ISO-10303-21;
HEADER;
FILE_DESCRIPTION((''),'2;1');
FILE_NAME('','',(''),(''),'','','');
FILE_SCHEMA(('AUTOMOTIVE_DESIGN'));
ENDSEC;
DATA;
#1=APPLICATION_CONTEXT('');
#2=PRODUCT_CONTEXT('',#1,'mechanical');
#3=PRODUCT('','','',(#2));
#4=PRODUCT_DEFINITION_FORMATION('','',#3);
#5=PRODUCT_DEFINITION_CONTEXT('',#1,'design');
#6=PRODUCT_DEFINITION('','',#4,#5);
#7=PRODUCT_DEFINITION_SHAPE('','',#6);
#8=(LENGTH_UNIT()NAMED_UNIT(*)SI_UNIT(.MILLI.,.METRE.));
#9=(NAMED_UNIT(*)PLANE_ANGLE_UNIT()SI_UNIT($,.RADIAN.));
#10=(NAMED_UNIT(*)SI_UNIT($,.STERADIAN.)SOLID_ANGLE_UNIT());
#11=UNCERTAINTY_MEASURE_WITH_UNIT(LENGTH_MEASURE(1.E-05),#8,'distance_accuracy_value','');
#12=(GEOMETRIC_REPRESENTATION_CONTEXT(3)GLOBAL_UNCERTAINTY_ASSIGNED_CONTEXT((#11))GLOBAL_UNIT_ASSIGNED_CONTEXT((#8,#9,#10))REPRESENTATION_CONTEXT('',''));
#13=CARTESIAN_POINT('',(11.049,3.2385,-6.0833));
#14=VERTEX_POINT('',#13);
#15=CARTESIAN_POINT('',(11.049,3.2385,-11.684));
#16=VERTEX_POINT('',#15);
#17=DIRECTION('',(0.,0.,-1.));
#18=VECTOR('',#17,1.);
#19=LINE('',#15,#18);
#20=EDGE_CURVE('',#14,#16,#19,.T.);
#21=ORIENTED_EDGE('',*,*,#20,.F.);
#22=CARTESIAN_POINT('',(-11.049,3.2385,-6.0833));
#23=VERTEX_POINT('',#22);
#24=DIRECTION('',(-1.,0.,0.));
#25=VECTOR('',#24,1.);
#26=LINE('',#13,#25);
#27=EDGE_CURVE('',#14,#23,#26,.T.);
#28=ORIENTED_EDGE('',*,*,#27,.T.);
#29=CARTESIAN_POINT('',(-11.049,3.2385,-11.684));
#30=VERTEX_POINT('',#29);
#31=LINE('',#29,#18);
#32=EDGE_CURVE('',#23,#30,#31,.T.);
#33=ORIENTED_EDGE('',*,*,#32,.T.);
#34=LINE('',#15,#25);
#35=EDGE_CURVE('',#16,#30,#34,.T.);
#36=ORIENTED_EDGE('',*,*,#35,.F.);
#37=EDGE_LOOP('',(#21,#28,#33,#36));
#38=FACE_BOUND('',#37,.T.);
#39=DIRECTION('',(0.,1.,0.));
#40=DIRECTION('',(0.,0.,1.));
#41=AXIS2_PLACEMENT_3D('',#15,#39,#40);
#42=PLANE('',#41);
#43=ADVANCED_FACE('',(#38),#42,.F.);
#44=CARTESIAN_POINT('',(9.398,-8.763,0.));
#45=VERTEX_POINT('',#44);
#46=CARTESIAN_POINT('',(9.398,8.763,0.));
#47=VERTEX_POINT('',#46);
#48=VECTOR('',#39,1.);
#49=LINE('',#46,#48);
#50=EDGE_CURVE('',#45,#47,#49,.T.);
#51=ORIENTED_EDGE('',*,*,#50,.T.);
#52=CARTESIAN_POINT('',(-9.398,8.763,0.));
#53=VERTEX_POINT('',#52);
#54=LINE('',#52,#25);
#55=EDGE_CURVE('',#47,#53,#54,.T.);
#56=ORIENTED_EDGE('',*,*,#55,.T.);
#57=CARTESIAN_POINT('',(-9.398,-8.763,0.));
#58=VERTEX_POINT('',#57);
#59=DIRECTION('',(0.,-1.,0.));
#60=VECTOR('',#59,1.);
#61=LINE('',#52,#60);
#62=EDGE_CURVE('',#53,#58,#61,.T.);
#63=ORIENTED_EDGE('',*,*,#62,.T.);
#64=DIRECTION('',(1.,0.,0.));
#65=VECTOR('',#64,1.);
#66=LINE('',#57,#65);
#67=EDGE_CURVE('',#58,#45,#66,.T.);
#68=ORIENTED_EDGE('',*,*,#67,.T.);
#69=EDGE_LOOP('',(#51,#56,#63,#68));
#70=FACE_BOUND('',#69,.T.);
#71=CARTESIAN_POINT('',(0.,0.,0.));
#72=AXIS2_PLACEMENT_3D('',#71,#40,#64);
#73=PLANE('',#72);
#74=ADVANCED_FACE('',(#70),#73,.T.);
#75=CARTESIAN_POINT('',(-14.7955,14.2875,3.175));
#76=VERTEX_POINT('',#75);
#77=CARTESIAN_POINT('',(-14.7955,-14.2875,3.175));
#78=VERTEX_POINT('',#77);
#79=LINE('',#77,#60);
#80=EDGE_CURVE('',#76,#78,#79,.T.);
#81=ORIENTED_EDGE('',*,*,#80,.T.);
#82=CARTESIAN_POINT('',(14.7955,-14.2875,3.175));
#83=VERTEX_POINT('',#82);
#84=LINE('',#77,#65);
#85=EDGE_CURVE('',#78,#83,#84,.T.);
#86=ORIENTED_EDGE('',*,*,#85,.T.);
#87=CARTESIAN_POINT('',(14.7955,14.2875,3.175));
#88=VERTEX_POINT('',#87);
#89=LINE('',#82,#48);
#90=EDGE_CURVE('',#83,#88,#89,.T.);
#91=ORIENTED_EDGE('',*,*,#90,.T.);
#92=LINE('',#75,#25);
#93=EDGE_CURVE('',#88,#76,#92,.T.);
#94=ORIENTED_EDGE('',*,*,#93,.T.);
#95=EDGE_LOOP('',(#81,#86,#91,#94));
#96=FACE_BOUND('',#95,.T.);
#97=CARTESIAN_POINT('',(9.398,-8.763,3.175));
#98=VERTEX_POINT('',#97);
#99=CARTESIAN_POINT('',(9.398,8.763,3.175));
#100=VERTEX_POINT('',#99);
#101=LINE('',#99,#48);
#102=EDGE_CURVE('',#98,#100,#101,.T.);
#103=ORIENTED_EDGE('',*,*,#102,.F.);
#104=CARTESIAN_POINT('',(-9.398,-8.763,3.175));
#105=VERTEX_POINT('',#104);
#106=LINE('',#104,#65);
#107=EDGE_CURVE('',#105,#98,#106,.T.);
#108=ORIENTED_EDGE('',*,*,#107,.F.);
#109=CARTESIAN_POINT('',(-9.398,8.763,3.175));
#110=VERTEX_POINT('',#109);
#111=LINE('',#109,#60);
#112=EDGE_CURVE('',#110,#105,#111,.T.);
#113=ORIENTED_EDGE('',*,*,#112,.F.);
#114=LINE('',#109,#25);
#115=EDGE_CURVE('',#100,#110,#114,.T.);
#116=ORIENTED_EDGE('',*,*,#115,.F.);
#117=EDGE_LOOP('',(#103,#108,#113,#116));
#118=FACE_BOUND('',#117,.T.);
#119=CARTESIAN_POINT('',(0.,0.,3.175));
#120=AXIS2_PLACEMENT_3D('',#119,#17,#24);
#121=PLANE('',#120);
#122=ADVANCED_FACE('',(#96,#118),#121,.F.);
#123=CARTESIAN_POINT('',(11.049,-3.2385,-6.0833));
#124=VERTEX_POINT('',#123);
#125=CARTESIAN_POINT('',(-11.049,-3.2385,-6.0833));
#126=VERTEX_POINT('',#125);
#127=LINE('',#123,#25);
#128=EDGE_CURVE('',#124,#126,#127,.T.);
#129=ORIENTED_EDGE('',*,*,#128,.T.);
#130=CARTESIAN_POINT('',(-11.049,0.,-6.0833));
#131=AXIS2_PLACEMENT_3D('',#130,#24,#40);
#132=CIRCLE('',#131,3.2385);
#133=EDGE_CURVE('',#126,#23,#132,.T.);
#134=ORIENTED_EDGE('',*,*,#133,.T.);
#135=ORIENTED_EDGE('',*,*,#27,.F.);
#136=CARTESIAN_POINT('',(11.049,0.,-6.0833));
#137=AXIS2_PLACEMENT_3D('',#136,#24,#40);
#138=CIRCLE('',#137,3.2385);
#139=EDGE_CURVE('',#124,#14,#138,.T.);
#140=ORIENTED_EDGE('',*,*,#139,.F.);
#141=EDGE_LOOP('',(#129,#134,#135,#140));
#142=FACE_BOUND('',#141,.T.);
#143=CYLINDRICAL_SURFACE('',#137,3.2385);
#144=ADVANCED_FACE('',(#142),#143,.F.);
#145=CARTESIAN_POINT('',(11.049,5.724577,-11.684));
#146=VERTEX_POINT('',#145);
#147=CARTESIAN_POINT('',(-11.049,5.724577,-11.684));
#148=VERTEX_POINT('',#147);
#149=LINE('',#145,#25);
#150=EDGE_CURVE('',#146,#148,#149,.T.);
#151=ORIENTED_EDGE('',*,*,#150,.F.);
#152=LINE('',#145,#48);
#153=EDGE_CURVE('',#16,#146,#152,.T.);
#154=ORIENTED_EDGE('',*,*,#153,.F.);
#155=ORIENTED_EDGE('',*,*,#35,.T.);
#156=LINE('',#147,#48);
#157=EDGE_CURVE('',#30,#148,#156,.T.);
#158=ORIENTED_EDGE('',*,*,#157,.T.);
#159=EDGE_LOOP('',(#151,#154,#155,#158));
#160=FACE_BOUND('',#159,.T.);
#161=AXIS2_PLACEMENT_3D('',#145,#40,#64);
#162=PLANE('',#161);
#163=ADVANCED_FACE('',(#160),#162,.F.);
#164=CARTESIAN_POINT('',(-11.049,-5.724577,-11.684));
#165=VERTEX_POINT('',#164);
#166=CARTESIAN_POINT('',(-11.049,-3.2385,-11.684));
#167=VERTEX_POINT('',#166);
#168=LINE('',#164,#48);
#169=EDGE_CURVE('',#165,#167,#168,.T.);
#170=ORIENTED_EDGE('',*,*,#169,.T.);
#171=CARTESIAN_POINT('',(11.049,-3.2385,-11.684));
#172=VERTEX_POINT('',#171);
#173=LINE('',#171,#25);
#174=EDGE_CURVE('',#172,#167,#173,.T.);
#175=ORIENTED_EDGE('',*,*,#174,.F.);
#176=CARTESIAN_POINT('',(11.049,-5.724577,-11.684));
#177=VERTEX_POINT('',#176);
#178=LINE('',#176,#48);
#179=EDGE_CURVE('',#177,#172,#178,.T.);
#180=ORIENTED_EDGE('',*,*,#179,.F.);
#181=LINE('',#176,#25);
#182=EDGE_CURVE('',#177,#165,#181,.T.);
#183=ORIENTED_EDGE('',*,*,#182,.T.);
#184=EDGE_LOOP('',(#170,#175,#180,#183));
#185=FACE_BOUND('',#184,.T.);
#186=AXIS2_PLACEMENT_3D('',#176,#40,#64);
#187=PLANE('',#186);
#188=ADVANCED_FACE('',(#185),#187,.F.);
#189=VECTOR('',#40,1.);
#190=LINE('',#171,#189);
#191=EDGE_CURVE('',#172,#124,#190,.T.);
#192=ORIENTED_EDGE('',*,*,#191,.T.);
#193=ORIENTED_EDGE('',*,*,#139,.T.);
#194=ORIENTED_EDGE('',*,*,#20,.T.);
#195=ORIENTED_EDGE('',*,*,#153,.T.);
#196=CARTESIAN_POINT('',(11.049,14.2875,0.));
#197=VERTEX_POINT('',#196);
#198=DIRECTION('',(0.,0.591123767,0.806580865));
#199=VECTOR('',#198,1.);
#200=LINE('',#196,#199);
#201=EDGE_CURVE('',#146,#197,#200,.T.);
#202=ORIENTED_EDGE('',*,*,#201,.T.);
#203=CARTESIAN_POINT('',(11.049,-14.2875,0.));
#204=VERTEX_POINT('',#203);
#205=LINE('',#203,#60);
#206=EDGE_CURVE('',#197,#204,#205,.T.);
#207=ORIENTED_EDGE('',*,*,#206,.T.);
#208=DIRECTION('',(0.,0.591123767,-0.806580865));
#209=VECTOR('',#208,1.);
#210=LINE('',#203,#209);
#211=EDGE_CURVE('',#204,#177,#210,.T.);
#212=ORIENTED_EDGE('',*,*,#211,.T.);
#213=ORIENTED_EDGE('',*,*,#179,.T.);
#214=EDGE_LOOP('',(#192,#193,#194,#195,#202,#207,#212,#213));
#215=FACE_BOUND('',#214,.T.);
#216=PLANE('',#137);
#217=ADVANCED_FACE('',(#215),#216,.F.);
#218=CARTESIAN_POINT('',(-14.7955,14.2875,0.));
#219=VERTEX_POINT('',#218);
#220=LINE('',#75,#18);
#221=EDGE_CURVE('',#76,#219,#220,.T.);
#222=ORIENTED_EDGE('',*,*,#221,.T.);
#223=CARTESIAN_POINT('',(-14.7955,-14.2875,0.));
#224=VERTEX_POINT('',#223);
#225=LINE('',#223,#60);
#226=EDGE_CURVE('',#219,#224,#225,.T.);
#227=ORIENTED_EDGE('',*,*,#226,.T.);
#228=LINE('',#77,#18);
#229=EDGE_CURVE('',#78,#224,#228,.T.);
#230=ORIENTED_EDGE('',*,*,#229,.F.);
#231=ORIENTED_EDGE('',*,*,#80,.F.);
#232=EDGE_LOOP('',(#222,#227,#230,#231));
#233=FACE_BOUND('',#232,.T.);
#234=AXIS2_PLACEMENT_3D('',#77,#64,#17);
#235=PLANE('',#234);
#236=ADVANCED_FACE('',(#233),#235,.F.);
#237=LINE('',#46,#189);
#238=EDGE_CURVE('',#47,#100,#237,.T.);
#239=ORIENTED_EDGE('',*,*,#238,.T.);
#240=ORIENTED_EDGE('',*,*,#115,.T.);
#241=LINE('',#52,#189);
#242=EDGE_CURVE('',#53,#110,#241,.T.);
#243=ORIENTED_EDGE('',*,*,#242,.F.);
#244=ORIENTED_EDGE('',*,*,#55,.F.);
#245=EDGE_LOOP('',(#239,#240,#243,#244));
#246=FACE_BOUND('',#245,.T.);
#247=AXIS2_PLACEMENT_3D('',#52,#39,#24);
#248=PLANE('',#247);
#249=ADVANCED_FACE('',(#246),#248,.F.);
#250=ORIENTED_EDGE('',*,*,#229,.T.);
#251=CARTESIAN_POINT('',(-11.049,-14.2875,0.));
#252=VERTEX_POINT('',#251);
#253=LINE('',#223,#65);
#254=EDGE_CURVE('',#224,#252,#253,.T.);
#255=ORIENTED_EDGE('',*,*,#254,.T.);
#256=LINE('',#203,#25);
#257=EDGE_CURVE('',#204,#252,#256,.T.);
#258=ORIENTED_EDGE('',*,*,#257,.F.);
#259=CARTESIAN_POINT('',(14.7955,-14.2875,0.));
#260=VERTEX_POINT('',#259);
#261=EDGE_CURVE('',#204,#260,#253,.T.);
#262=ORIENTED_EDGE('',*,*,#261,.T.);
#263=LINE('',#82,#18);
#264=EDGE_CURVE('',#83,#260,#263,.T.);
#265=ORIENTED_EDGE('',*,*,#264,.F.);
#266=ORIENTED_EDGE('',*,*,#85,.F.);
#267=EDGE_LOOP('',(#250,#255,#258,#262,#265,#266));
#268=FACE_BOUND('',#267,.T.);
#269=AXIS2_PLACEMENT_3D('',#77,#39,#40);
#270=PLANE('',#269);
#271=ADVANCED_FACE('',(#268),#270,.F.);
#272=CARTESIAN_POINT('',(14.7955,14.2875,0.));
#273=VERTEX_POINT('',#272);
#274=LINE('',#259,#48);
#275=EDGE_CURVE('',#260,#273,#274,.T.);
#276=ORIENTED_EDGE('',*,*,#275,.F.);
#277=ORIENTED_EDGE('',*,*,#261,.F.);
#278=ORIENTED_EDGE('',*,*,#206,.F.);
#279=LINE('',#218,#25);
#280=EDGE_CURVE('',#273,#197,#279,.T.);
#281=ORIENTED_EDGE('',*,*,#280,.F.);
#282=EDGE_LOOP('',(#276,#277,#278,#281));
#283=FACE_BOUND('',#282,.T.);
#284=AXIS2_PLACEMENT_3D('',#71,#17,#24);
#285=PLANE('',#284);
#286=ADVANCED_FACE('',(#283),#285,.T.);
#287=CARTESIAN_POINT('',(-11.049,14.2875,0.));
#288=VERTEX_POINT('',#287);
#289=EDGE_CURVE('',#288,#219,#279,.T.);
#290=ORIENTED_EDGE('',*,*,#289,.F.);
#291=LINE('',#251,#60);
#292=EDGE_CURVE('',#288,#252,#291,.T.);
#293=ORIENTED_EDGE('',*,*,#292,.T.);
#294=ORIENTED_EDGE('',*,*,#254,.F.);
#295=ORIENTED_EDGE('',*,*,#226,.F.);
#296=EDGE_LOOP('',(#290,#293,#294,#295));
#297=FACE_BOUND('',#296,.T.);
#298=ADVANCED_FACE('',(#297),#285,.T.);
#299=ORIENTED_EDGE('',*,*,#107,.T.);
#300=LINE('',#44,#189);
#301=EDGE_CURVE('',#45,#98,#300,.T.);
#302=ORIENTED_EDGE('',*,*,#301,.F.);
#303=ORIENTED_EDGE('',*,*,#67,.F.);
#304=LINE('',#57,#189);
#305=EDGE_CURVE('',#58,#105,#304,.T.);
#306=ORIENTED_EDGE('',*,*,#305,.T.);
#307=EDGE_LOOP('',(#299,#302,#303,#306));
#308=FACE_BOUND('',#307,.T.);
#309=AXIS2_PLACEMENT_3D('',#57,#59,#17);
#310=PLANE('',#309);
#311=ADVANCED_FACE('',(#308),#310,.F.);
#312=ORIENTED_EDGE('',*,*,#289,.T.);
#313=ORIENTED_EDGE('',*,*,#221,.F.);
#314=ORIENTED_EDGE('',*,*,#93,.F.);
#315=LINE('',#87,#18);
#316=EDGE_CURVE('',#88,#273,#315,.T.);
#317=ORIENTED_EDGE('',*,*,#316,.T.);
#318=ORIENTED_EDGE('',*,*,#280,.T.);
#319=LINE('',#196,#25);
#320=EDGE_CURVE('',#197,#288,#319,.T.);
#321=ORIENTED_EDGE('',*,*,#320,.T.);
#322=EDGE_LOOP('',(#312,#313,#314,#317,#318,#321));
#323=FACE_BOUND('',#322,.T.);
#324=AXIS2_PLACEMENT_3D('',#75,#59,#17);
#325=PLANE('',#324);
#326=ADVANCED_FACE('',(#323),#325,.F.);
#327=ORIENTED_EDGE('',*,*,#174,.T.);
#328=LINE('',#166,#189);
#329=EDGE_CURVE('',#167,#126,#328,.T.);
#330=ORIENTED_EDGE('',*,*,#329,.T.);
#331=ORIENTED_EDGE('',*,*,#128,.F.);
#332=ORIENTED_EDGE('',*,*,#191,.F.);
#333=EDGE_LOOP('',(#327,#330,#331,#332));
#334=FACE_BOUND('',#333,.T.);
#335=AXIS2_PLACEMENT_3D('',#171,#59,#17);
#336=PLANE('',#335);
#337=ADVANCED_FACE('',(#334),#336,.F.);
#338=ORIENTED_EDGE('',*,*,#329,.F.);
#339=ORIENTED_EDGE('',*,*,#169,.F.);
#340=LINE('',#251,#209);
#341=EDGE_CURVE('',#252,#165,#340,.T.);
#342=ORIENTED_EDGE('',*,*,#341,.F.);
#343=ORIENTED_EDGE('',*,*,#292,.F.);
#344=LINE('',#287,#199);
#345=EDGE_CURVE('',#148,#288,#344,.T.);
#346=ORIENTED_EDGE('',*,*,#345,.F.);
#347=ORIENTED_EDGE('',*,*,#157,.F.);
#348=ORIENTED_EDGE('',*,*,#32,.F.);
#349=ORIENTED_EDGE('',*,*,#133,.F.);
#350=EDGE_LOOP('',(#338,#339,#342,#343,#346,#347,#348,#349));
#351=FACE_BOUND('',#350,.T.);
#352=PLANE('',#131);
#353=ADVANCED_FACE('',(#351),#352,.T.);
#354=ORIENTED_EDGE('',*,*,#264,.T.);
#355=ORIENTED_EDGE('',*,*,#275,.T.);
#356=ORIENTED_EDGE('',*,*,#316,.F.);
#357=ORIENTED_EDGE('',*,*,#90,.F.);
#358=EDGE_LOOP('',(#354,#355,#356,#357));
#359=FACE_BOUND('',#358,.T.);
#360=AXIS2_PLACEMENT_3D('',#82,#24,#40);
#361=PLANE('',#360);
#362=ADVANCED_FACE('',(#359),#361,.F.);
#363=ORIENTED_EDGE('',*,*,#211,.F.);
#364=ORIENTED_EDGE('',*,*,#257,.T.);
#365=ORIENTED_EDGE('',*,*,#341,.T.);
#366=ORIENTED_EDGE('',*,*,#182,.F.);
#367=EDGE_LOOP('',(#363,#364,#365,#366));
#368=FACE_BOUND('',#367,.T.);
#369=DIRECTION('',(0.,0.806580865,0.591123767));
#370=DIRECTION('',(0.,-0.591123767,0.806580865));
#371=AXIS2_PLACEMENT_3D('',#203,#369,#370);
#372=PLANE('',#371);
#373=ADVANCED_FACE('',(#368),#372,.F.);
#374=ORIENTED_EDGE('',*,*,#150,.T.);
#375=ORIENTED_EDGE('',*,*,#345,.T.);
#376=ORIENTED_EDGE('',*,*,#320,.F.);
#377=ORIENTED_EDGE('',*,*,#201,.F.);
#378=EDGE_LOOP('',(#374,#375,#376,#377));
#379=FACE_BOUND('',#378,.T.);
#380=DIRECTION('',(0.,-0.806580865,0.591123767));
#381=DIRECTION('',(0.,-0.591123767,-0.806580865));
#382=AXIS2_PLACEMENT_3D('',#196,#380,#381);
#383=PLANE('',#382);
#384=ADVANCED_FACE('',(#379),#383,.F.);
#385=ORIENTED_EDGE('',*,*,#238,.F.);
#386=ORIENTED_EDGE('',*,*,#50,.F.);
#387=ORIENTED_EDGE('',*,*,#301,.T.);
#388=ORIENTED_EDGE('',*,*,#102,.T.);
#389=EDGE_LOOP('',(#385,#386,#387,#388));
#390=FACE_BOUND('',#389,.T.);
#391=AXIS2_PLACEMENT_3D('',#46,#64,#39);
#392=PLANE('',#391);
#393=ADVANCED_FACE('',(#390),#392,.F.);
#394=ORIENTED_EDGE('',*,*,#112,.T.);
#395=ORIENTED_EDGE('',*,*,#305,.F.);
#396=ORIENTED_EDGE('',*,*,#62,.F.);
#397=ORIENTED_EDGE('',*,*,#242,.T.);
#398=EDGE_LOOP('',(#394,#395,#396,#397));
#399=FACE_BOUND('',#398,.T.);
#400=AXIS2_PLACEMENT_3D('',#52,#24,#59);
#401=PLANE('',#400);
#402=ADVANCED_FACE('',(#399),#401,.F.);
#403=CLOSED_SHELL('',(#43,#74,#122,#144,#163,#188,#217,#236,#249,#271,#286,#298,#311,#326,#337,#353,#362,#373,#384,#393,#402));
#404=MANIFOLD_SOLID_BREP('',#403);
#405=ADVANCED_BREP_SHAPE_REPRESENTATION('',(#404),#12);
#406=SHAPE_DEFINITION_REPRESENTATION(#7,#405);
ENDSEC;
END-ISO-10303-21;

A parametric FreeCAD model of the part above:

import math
import FreeCAD as App
import Part
import Sketcher
Q = App.Units.Quantity

doc = App.newDocument("Part")
body = doc.addObject("PartDesign::Body", "Body")

# Sketch on XY plane
sketch1 = body.newObject("Sketcher::SketchObject", "Sketch")
sketch1.AttachmentSupport = (doc.getObject("XY_Plane"), [""])
sketch1.MapMode = "FlatFace"
sketch1.addGeometry([
    Part.LineSegment(App.Vector(-14.7955, 14.2875, 0), App.Vector(-14.7955, -14.2875, 0)),
    Part.LineSegment(App.Vector(-14.7955, -14.2875, 0), App.Vector(14.7955, -14.2875, 0)),
    Part.LineSegment(App.Vector(14.7955, -14.2875, 0), App.Vector(14.7955, 14.2875, 0)),
    Part.LineSegment(App.Vector(14.7955, 14.2875, 0), App.Vector(-14.7955, 14.2875, 0)),
], False)
sketch1.addConstraint([
    Sketcher.Constraint("Coincident", 0, 2, 1, 1),
    Sketcher.Constraint("Coincident", 1, 2, 2, 1),
    Sketcher.Constraint("Coincident", 2, 2, 3, 1),
    Sketcher.Constraint("Coincident", 3, 2, 0, 1),
    Sketcher.Constraint("Vertical", 0),
    Sketcher.Constraint("Horizontal", 1),
    Sketcher.Constraint("Vertical", 2),
    Sketcher.Constraint("Horizontal", 3),
    Sketcher.Constraint("Symmetric", 0, 2, 2, 2, -1, 1),
    Sketcher.Constraint("DistanceX", 1, 1, 1, 2, Q("1.165 in")),
    Sketcher.Constraint("DistanceY", 0, 2, 0, 1, Q("1.125 in")),
])
pad1 = body.newObject("PartDesign::Pad", "Pad")
pad1.Profile = sketch1
pad1.Length = Q("0.125 in")

# Sketch on YZ plane
sketch2 = body.newObject("Sketcher::SketchObject", "Sketch001")
sketch2.AttachmentSupport = (doc.getObject("YZ_Plane"), [""])
sketch2.MapMode = "FlatFace"
sketch2.addGeometry([
    Part.LineSegment(App.Vector(-14.2875, 0, 0), App.Vector(-5.724577, -11.684, 0)),  # 0
    Part.LineSegment(App.Vector(-5.724577, -11.684, 0), App.Vector(-3.2385, -11.684, 0)),  # 1
    Part.LineSegment(App.Vector(-3.2385, -11.684, 0), App.Vector(-3.2385, -6.0833, 0)),  # 2
    Part.ArcOfCircle(Part.Circle(App.Vector(0, -6.0833, 0), App.Vector(0, 0, 1), 3.2385), math.radians(0), math.radians(180)),  # 3
    Part.LineSegment(App.Vector(3.2385, -6.0833, 0), App.Vector(3.2385, -11.684, 0)),  # 4
    Part.LineSegment(App.Vector(3.2385, -11.684, 0), App.Vector(5.724577, -11.684, 0)),  # 5
    Part.LineSegment(App.Vector(5.724577, -11.684, 0), App.Vector(14.2875, 0, 0)),  # 6
    Part.LineSegment(App.Vector(14.2875, 0, 0), App.Vector(-14.2875, 0, 0)),  # 7
], False)
sketch2.addConstraint([
    Sketcher.Constraint("Coincident", 0, 2, 1, 1),
    Sketcher.Constraint("Coincident", 1, 2, 2, 1),
    Sketcher.Constraint("Tangent", 2, 2, 3, 2),
    Sketcher.Constraint("Tangent", 3, 1, 4, 1),
    Sketcher.Constraint("Coincident", 4, 2, 5, 1),
    Sketcher.Constraint("Coincident", 5, 2, 6, 1),
    Sketcher.Constraint("Coincident", 6, 2, 7, 1),
    Sketcher.Constraint("Coincident", 7, 2, 0, 1),
    Sketcher.Constraint("Horizontal", 1),
    Sketcher.Constraint("Vertical", 2),
    Sketcher.Constraint("Vertical", 4),
    Sketcher.Constraint("Horizontal", 5),
    Sketcher.Constraint("Horizontal", 7),
    Sketcher.Constraint("Symmetric", 6, 2, 7, 2, -1, 1),
    Sketcher.Constraint("Symmetric", 1, 2, 4, 2, -2),
    Sketcher.Constraint("Equal", 1, 5),
    Sketcher.Constraint("Radius", 3, Q("0.1275 in")),
    Sketcher.Constraint("DistanceX", 7, 2, 7, 1, Q("1.125 in")),
    Sketcher.Constraint("DistanceY", 0, 2, -1, 1, Q("0.46 in")),
    Sketcher.Constraint("DistanceY", 2, 1, 2, 2, Q("0.2205 in")),
    Sketcher.Constraint("Distance", 0, 14.485838),
])
pad2 = body.newObject("PartDesign::Pad", "Pad001")
pad2.Profile = sketch2
pad2.Length = Q("0.87 in")
pad2.Midplane = True

# Sketch on XY plane
sketch3 = body.newObject("Sketcher::SketchObject", "Sketch002")
sketch3.AttachmentSupport = (doc.getObject("XY_Plane"), [""])
sketch3.MapMode = "FlatFace"
sketch3.AttachmentOffset = App.Placement(App.Vector(0, 0, 0.125 * 25.4), App.Rotation())
sketch3.addGeometry([
    Part.LineSegment(App.Vector(-9.398, 8.763, 0), App.Vector(-9.398, -8.763, 0)),
    Part.LineSegment(App.Vector(-9.398, -8.763, 0), App.Vector(9.398, -8.763, 0)),
    Part.LineSegment(App.Vector(9.398, -8.763, 0), App.Vector(9.398, 8.763, 0)),
    Part.LineSegment(App.Vector(9.398, 8.763, 0), App.Vector(-9.398, 8.763, 0)),
], False)
sketch3.addConstraint([
    Sketcher.Constraint("Coincident", 0, 2, 1, 1),
    Sketcher.Constraint("Coincident", 1, 2, 2, 1),
    Sketcher.Constraint("Coincident", 2, 2, 3, 1),
    Sketcher.Constraint("Coincident", 3, 2, 0, 1),
    Sketcher.Constraint("Vertical", 0),
    Sketcher.Constraint("Horizontal", 1),
    Sketcher.Constraint("Vertical", 2),
    Sketcher.Constraint("Horizontal", 3),
    Sketcher.Constraint("Symmetric", 0, 2, 2, 2, -1, 1),
    Sketcher.Constraint("DistanceX", 1, 1, 1, 2, Q("0.74 in")),
    Sketcher.Constraint("DistanceY", 0, 2, 0, 1, Q("0.69 in")),
])
pocket1 = body.newObject("PartDesign::Pocket", "Pocket")
pocket1.Profile = sketch3
pocket1.Length = Q("0.125 in")

doc.recompute()
